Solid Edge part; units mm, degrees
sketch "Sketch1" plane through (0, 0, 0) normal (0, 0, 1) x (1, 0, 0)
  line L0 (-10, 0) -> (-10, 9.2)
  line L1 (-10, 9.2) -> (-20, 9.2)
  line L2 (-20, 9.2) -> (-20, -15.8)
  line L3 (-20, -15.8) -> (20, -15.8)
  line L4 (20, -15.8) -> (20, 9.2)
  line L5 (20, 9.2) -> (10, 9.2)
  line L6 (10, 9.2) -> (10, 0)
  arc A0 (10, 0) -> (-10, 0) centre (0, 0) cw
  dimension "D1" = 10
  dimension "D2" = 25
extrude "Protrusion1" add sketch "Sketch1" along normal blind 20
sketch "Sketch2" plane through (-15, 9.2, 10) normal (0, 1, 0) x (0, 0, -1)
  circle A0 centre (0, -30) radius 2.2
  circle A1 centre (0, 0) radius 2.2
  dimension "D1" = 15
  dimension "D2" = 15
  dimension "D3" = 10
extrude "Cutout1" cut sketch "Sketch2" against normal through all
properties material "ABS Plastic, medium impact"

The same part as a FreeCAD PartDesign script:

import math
import FreeCAD as App
import Part
import Sketcher
from FreeCAD import Vector

doc = App.newDocument("Part")
params = doc.addObject("Spreadsheet::Sheet", "Params")
for row, (alias, value) in enumerate([
    ("sketch1_radius", "10 mm"),
    ("sketch1_width", "10 mm"),
    ("sketch1_height", "25 mm"),
    ("sketch1_height2", "9.2 mm"),
    ("pad1_length", "20 mm"),
    ("sketch2_diameter", "4.4 mm"),
], start=1):
    params.set(f"A{row}", alias)
    params.set(f"B{row}", "=" + value)
    params.setAlias(f"B{row}", alias)

body = doc.addObject("PartDesign::Body", "Body")

# Sketch on XY plane
sketch1 = body.newObject("Sketcher::SketchObject", "Sketch")
sketch1.AttachmentSupport = (doc.getObject("XY_Plane"), [""])
sketch1.MapMode = "FlatFace"
sketch1.addGeometry([
    Part.ArcOfCircle(Part.Circle(Vector(0, 0, 0), Vector(0, 0, 1), 10), math.radians(180), math.radians(360)),  # 0
    Part.LineSegment(Vector(-10, 0, 0), Vector(-10, 9.2, 0)),  # 1
    Part.LineSegment(Vector(-10, 9.2, 0), Vector(-20, 9.2, 0)),  # 2
    Part.LineSegment(Vector(-20, 9.2, 0), Vector(-20, -15.8, 0)),  # 3
    Part.LineSegment(Vector(-20, -15.8, 0), Vector(20, -15.8, 0)),  # 4
    Part.LineSegment(Vector(20, -15.8, 0), Vector(20, 9.2, 0)),  # 5
    Part.LineSegment(Vector(20, 9.2, 0), Vector(10, 9.2, 0)),  # 6
    Part.LineSegment(Vector(10, 9.2, 0), Vector(10, 0, 0)),  # 7
], False)
sketch1.addConstraint([
    Sketcher.Constraint("Tangent", 0, 1, 1, 1),
    Sketcher.Constraint("Coincident", 1, 2, 2, 1),
    Sketcher.Constraint("Coincident", 2, 2, 3, 1),
    Sketcher.Constraint("Coincident", 3, 2, 4, 1),
    Sketcher.Constraint("Coincident", 4, 2, 5, 1),
    Sketcher.Constraint("Coincident", 5, 2, 6, 1),
    Sketcher.Constraint("Coincident", 6, 2, 7, 1),
    Sketcher.Constraint("Tangent", 7, 2, 0, 2),
    Sketcher.Constraint("Vertical", 1),
    Sketcher.Constraint("Horizontal", 2),
    Sketcher.Constraint("Vertical", 3),
    Sketcher.Constraint("Horizontal", 4),
    Sketcher.Constraint("Vertical", 5),
    Sketcher.Constraint("Horizontal", 6),
    Sketcher.Constraint("Vertical", 7),
    Sketcher.Constraint("Coincident", 0, 3, -1, 1),
    Sketcher.Constraint("Symmetric", 2, 2, 5, 2, -2),
    Sketcher.Constraint("Radius", 0, 10.0),
    Sketcher.Constraint("DistanceX", 2, 2, 2, 1, 10.0),
    Sketcher.Constraint("DistanceY", 3, 2, 3, 1, 25.0),
    Sketcher.Constraint("DistanceY", 1, 1, 1, 2, 9.2),
])
sketch1.setExpression("Constraints[17]", "Params.sketch1_radius")
sketch1.setExpression("Constraints[18]", "Params.sketch1_width")
sketch1.setExpression("Constraints[19]", "Params.sketch1_height")
sketch1.setExpression("Constraints[20]", "Params.sketch1_height2")
pad1 = body.newObject("PartDesign::Pad", "Pad")
pad1.Profile = sketch1
pad1.setExpression("Length", "Params.pad1_length")

# Sketch on XZ plane
sketch2 = body.newObject("Sketcher::SketchObject", "Sketch001")
sketch2.AttachmentSupport = (doc.getObject("XZ_Plane"), [""])
sketch2.MapMode = "FlatFace"
sketch2.AttachmentOffset = App.Placement(Vector(0, 0, -9.2), App.Rotation())
sketch2.addGeometry([
    Part.Circle(Vector(15, 10, 0), Vector(0, 0, 1), 2.2),
    Part.Circle(Vector(-15, 10, 0), Vector(0, 0, 1), 2.2),
], False)
sketch2.addConstraint([
    Sketcher.Constraint("Equal", 0, 1),
    Sketcher.Constraint("Symmetric", 0, 3, 1, 3, -2),
    Sketcher.Constraint("Diameter", 0, 4.4),
    Sketcher.Constraint("DistanceX", -1, 1, 0, 3, 15.0),
    Sketcher.Constraint("DistanceY", -1, 1, 0, 3, 10.0),
])
sketch2.setExpression("Constraints[2]", "Params.sketch2_diameter")
pocket1 = body.newObject("PartDesign::Pocket", "Pocket")
pocket1.Profile = sketch2
pocket1.Type = "ThroughAll"
pocket1.Reversed = True

doc.recompute()
